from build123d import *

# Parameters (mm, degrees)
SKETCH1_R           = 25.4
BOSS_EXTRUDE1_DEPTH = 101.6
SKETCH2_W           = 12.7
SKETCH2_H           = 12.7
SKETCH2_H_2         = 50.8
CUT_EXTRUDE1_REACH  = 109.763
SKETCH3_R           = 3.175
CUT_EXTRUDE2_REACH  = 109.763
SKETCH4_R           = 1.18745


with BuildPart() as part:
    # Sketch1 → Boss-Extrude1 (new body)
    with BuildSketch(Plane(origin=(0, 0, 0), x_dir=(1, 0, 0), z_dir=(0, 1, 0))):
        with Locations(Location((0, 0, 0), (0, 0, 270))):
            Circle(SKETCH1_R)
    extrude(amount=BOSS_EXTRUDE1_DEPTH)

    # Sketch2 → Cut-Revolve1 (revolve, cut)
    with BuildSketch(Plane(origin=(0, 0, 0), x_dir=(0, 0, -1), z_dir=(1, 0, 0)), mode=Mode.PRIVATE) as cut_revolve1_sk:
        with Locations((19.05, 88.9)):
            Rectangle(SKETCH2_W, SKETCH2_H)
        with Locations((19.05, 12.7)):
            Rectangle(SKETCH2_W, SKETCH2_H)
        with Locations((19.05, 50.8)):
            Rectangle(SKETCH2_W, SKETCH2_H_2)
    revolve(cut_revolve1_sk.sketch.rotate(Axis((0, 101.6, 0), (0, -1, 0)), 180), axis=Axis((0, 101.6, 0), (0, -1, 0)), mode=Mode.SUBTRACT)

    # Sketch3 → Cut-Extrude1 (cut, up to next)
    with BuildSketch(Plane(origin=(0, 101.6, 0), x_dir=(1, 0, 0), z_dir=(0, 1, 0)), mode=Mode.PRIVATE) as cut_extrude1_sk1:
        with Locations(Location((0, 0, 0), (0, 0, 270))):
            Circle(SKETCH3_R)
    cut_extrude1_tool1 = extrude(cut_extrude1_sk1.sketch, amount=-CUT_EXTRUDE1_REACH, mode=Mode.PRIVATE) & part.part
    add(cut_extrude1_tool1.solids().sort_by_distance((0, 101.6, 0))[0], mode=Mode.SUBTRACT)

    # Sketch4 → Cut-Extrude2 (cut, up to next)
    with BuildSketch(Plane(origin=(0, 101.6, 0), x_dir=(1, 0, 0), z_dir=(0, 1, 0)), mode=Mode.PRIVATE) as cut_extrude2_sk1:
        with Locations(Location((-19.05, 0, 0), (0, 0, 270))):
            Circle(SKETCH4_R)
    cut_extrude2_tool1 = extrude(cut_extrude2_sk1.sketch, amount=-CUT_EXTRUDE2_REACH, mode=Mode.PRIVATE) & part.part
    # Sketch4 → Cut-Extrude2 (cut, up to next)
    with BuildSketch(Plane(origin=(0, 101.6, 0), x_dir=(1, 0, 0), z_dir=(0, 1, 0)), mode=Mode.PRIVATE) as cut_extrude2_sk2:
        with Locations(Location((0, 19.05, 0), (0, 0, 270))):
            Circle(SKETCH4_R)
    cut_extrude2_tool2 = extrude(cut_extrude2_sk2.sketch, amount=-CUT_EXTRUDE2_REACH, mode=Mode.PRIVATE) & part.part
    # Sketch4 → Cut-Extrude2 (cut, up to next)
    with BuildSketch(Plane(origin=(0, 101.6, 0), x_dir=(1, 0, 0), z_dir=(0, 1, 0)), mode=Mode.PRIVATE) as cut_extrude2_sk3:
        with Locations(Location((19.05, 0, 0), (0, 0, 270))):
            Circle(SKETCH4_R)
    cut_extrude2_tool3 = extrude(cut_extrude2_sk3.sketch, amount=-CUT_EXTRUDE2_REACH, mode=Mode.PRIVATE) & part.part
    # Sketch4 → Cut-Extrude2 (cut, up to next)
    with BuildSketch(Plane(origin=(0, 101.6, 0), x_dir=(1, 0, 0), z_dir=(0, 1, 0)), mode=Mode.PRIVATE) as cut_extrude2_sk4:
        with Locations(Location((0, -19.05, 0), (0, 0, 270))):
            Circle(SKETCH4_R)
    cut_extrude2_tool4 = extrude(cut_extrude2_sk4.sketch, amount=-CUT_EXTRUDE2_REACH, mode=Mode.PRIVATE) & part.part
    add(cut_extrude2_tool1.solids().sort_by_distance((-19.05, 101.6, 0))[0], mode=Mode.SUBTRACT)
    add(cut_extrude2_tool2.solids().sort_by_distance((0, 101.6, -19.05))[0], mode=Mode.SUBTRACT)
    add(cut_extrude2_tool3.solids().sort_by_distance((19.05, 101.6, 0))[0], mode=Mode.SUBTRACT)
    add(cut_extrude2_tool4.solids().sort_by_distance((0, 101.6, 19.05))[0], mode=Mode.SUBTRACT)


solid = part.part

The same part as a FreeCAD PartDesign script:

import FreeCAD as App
import Part
import Sketcher
Q = App.Units.Quantity

doc = App.newDocument("Part")
body = doc.addObject("PartDesign::Body", "Body")

sketch1 = doc.addObject("Sketcher::SketchObject", "Sketch")
body.addObject(sketch1)
sketch1.AttachmentSupport = (doc.XZ_Plane, [""])
sketch1.MapMode = "FlatFace"
sketch1.addGeometry(Part.Circle(App.Vector(0, 0, 0), App.Vector(0, 0, 1), 25.4), False)
sketch1.addConstraint(Sketcher.Constraint("Coincident", 0, 3, -1, 1))
sketch1.addConstraint(Sketcher.Constraint("Diameter", 0, Q("2 in")))
pad1 = doc.addObject("PartDesign::Pad", "Pad")
body.addObject(pad1)
pad1.Profile = sketch1
pad1.Length = Q("4 in")
pad1.Reversed = True

sketch2 = doc.addObject("Sketcher::SketchObject", "Sketch001")
body.addObject(sketch2)
sketch2.AttachmentSupport = (doc.YZ_Plane, [""])
sketch2.MapMode = "FlatFace"
sketch2.addGeometry(Part.LineSegment(App.Vector(95.25, -12.7, 0), App.Vector(82.55, -12.7, 0)), False)
sketch2.addGeometry(Part.LineSegment(App.Vector(82.55, -12.7, 0), App.Vector(82.55, -25.4, 0)), False)
sketch2.addGeometry(Part.LineSegment(App.Vector(82.55, -25.4, 0), App.Vector(95.25, -25.4, 0)), False)
sketch2.addGeometry(Part.LineSegment(App.Vector(95.25, -25.4, 0), App.Vector(95.25, -12.7, 0)), False)
sketch2.addGeometry(Part.LineSegment(App.Vector(19.05, -12.7, 0), App.Vector(6.35, -12.7, 0)), False)
sketch2.addGeometry(Part.LineSegment(App.Vector(6.35, -12.7, 0), App.Vector(6.35, -25.4, 0)), False)
sketch2.addGeometry(Part.LineSegment(App.Vector(6.35, -25.4, 0), App.Vector(19.05, -25.4, 0)), False)
sketch2.addGeometry(Part.LineSegment(App.Vector(19.05, -25.4, 0), App.Vector(19.05, -12.7, 0)), False)
sketch2.addGeometry(Part.LineSegment(App.Vector(76.2, -12.7, 0), App.Vector(25.4, -12.7, 0)), False)
sketch2.addGeometry(Part.LineSegment(App.Vector(25.4, -12.7, 0), App.Vector(25.4, -25.4, 0)), False)
sketch2.addGeometry(Part.LineSegment(App.Vector(25.4, -25.4, 0), App.Vector(76.2, -25.4, 0)), False)
sketch2.addGeometry(Part.LineSegment(App.Vector(76.2, -25.4, 0), App.Vector(76.2, -12.7, 0)), False)
sketch2.addConstraint(Sketcher.Constraint("Coincident", 0, 2, 1, 1))
sketch2.addConstraint(Sketcher.Constraint("Coincident", 1, 2, 2, 1))
sketch2.addConstraint(Sketcher.Constraint("Coincident", 2, 2, 3, 1))
sketch2.addConstraint(Sketcher.Constraint("Coincident", 3, 2, 0, 1))
sketch2.addConstraint(Sketcher.Constraint("Coincident", 4, 2, 5, 1))
sketch2.addConstraint(Sketcher.Constraint("Coincident", 5, 2, 6, 1))
sketch2.addConstraint(Sketcher.Constraint("Coincident", 6, 2, 7, 1))
sketch2.addConstraint(Sketcher.Constraint("Coincident", 7, 2, 4, 1))
sketch2.addConstraint(Sketcher.Constraint("Coincident", 8, 2, 9, 1))
sketch2.addConstraint(Sketcher.Constraint("Coincident", 9, 2, 10, 1))
sketch2.addConstraint(Sketcher.Constraint("Coincident", 10, 2, 11, 1))
sketch2.addConstraint(Sketcher.Constraint("Coincident", 11, 2, 8, 1))
sketch2.addConstraint(Sketcher.Constraint("Horizontal", 0))
sketch2.addConstraint(Sketcher.Constraint("Vertical", 1))
sketch2.addConstraint(Sketcher.Constraint("Horizontal", 2))
sketch2.addConstraint(Sketcher.Constraint("Vertical", 3))
sketch2.addConstraint(Sketcher.Constraint("Horizontal", 4))
sketch2.addConstraint(Sketcher.Constraint("Vertical", 5))
sketch2.addConstraint(Sketcher.Constraint("Horizontal", 6))
sketch2.addConstraint(Sketcher.Constraint("Vertical", 7))
sketch2.addConstraint(Sketcher.Constraint("Horizontal", 8))
sketch2.addConstraint(Sketcher.Constraint("Vertical", 9))
sketch2.addConstraint(Sketcher.Constraint("Horizontal", 10))
sketch2.addConstraint(Sketcher.Constraint("Vertical", 11))
sketch2.addConstraint(Sketcher.Constraint("Horizontal", 3, 2, 4, 2))
sketch2.addConstraint(Sketcher.Constraint("Horizontal", 2, 2, 5, 2))
sketch2.addConstraint(Sketcher.Constraint("Horizontal", 7, 2, 8, 2))
sketch2.addConstraint(Sketcher.Constraint("Horizontal", 6, 2, 9, 2))
sketch2.addConstraint(Sketcher.Constraint("Equal", 2, 4))
sketch2.addConstraint(Sketcher.Constraint("Equal", 6, 1))
sketch2.addConstraint(Sketcher.Constraint("DistanceX", 8, 2, 8, 1, Q("2 in")))
sketch2.addConstraint(Sketcher.Constraint("DistanceX", 0, 2, 0, 1, Q("0.5 in")))
sketch2.addConstraint(Sketcher.Constraint("DistanceY", 1, 2, -1, 1, Q("1 in")))
sketch2.addConstraint(Sketcher.Constraint("DistanceX", -1, 1, 8, 2, Q("1 in")))
sketch2.addConstraint(Sketcher.Constraint("DistanceX", 4, 2, 0, 2, Q("3 in")))
sketch2.addConstraint(Sketcher.Constraint("DistanceX", -1, 1, 0, 2, Q("3.25 in")))
groove = doc.addObject("PartDesign::Groove", "Groove")
body.addObject(groove)
groove.Profile = sketch2
groove.ReferenceAxis = (sketch2, ["H_Axis"])
groove.Angle = 360

sketch3 = doc.addObject("Sketcher::SketchObject", "Sketch002")
body.addObject(sketch3)
sketch3.AttachmentSupport = (doc.XZ_Plane, [""])
sketch3.MapMode = "FlatFace"
sketch3.AttachmentOffset = App.Placement(App.Vector(0, 0, -4 * 25.4), App.Rotation())
sketch3.addGeometry(Part.Circle(App.Vector(0, 0, 0), App.Vector(0, 0, 1), 3.175), False)
sketch3.addConstraint(Sketcher.Constraint("Coincident", 0, 3, -1, 1))
sketch3.addConstraint(Sketcher.Constraint("Diameter", 0, Q("0.25 in")))
pocket1 = doc.addObject("PartDesign::Pocket", "Pocket")
body.addObject(pocket1)
pocket1.Profile = sketch3
pocket1.Type = "UpToFirst"
pocket1.Reversed = True

sketch4 = doc.addObject("Sketcher::SketchObject", "Sketch003")
body.addObject(sketch4)
sketch4.AttachmentSupport = (doc.XZ_Plane, [""])
sketch4.MapMode = "FlatFace"
sketch4.AttachmentOffset = App.Placement(App.Vector(0, 0, -4 * 25.4), App.Rotation())
sketch4.addGeometry(Part.Circle(App.Vector(-19.05, 0, 0), App.Vector(0, 0, 1), 1.18745), False)
sketch4.addConstraint(Sketcher.Constraint("PointOnObject", 0, 3, -1))
sketch4.addConstraint(Sketcher.Constraint("Diameter", 0, Q("0.0935 in")))
sketch4.addConstraint(Sketcher.Constraint("DistanceX", 0, 3, -1, 1, Q("0.75 in")))
pocket2 = doc.addObject("PartDesign::Pocket", "Pocket001")
body.addObject(pocket2)
pocket2.Profile = sketch4
pocket2.Type = "UpToFirst"
pocket2.Reversed = True

sketch5 = doc.addObject("Sketcher::SketchObject", "Sketch004")
body.addObject(sketch5)
sketch5.AttachmentSupport = (doc.XZ_Plane, [""])
sketch5.MapMode = "FlatFace"
sketch5.AttachmentOffset = App.Placement(App.Vector(0, 0, -4 * 25.4), App.Rotation())
sketch5.addGeometry(Part.Circle(App.Vector(0, -19.05, 0), App.Vector(0, 0, 1), 1.18745), False)
sketch5.addConstraint(Sketcher.Constraint("PointOnObject", 0, 3, -2))
sketch5.addConstraint(Sketcher.Constraint("Diameter", 0, Q("0.0935 in")))
sketch5.addConstraint(Sketcher.Constraint("DistanceY", 0, 3, -1, 1, Q("0.75 in")))
pocket3 = doc.addObject("PartDesign::Pocket", "Pocket002")
body.addObject(pocket3)
pocket3.Profile = sketch5
pocket3.Type = "UpToFirst"
pocket3.Reversed = True

sketch6 = doc.addObject("Sketcher::SketchObject", "Sketch005")
body.addObject(sketch6)
sketch6.AttachmentSupport = (doc.XZ_Plane, [""])
sketch6.MapMode = "FlatFace"
sketch6.AttachmentOffset = App.Placement(App.Vector(0, 0, -4 * 25.4), App.Rotation())
sketch6.addGeometry(Part.Circle(App.Vector(19.05, 0, 0), App.Vector(0, 0, 1), 1.18745), False)
sketch6.addConstraint(Sketcher.Constraint("PointOnObject", 0, 3, -1))
sketch6.addConstraint(Sketcher.Constraint("Diameter", 0, Q("0.0935 in")))
sketch6.addConstraint(Sketcher.Constraint("DistanceX", -1, 1, 0, 3, Q("0.75 in")))
pocket4 = doc.addObject("PartDesign::Pocket", "Pocket003")
body.addObject(pocket4)
pocket4.Profile = sketch6
pocket4.Type = "UpToFirst"
pocket4.Reversed = True

sketch7 = doc.addObject("Sketcher::SketchObject", "Sketch006")
body.addObject(sketch7)
sketch7.AttachmentSupport = (doc.XZ_Plane, [""])
sketch7.MapMode = "FlatFace"
sketch7.AttachmentOffset = App.Placement(App.Vector(0, 0, -4 * 25.4), App.Rotation())
sketch7.addGeometry(Part.Circle(App.Vector(0, 19.05, 0), App.Vector(0, 0, 1), 1.18745), False)
sketch7.addConstraint(Sketcher.Constraint("PointOnObject", 0, 3, -2))
sketch7.addConstraint(Sketcher.Constraint("Diameter", 0, Q("0.0935 in")))
sketch7.addConstraint(Sketcher.Constraint("DistanceY", -1, 1, 0, 3, Q("0.75 in")))
pocket5 = doc.addObject("PartDesign::Pocket", "Pocket004")
body.addObject(pocket5)
pocket5.Profile = sketch7
pocket5.Type = "UpToFirst"
pocket5.Reversed = True

doc.recompute()
